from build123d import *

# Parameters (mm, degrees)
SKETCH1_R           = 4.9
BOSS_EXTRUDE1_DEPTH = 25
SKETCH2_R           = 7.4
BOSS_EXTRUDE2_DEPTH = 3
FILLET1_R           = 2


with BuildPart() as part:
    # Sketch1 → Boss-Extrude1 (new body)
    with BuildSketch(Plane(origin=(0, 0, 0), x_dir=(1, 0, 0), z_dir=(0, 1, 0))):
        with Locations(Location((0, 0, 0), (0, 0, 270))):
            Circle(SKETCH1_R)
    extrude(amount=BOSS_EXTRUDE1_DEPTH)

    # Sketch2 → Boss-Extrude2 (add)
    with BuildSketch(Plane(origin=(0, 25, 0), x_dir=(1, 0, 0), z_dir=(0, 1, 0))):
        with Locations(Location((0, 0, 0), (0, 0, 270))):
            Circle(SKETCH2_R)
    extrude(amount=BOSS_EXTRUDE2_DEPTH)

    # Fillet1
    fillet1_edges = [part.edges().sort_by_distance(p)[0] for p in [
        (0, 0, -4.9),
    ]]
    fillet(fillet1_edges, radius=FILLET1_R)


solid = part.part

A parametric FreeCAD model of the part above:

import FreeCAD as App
import Part
import Sketcher
from FreeCAD import Vector
Q = App.Units.Quantity


def edges_at(feature, points):
    """Names of the edges that pass closest to the given points."""
    edges = feature.Shape.Edges
    near = lambda p: min(range(len(edges)), key=lambda i: edges[i].distToShape(Part.Vertex(*p))[0])
    return sorted({f"Edge{near(p) + 1}" for p in points})

doc = App.newDocument("Part")
body = doc.addObject("PartDesign::Body", "Body")

# Sketch on XZ plane
sketch1 = body.newObject("Sketcher::SketchObject", "Sketch")
sketch1.AttachmentSupport = (doc.getObject("XZ_Plane"), [""])
sketch1.MapMode = "FlatFace"
sketch1.addGeometry(Part.Circle(Vector(0, 0, 0), Vector(0, 0, 1), 4.9), False)
sketch1.addConstraint([
    Sketcher.Constraint("Coincident", 0, 3, -1, 1),
    Sketcher.Constraint("Diameter", 0, Q("9.8 mm")),
])
pad1 = body.newObject("PartDesign::Pad", "Pad")
pad1.Profile = sketch1
pad1.Length = 25
pad1.Reversed = True

# Sketch on XZ plane
sketch2 = body.newObject("Sketcher::SketchObject", "Sketch001")
sketch2.AttachmentSupport = (doc.getObject("XZ_Plane"), [""])
sketch2.MapMode = "FlatFace"
sketch2.AttachmentOffset = App.Placement(Vector(0, 0, -25), App.Rotation())
sketch2.addGeometry(Part.Circle(Vector(0, 0, 0), Vector(0, 0, 1), 7), False)
sketch2.addConstraint([
    Sketcher.Constraint("Coincident", 0, 3, -1, 1),
    Sketcher.Constraint("Diameter", 0, Q("14.8 mm")),
])
pad2 = body.newObject("PartDesign::Pad", "Pad001")
pad2.Profile = sketch2
pad2.Length = 3
pad2.Reversed = True
doc.recompute()

fillet = body.newObject("PartDesign::Fillet", "Fillet")
fillet.Base = (pad2, edges_at(pad2, [(0, 0, -4.9)]))
fillet.Radius = 2

doc.recompute()
